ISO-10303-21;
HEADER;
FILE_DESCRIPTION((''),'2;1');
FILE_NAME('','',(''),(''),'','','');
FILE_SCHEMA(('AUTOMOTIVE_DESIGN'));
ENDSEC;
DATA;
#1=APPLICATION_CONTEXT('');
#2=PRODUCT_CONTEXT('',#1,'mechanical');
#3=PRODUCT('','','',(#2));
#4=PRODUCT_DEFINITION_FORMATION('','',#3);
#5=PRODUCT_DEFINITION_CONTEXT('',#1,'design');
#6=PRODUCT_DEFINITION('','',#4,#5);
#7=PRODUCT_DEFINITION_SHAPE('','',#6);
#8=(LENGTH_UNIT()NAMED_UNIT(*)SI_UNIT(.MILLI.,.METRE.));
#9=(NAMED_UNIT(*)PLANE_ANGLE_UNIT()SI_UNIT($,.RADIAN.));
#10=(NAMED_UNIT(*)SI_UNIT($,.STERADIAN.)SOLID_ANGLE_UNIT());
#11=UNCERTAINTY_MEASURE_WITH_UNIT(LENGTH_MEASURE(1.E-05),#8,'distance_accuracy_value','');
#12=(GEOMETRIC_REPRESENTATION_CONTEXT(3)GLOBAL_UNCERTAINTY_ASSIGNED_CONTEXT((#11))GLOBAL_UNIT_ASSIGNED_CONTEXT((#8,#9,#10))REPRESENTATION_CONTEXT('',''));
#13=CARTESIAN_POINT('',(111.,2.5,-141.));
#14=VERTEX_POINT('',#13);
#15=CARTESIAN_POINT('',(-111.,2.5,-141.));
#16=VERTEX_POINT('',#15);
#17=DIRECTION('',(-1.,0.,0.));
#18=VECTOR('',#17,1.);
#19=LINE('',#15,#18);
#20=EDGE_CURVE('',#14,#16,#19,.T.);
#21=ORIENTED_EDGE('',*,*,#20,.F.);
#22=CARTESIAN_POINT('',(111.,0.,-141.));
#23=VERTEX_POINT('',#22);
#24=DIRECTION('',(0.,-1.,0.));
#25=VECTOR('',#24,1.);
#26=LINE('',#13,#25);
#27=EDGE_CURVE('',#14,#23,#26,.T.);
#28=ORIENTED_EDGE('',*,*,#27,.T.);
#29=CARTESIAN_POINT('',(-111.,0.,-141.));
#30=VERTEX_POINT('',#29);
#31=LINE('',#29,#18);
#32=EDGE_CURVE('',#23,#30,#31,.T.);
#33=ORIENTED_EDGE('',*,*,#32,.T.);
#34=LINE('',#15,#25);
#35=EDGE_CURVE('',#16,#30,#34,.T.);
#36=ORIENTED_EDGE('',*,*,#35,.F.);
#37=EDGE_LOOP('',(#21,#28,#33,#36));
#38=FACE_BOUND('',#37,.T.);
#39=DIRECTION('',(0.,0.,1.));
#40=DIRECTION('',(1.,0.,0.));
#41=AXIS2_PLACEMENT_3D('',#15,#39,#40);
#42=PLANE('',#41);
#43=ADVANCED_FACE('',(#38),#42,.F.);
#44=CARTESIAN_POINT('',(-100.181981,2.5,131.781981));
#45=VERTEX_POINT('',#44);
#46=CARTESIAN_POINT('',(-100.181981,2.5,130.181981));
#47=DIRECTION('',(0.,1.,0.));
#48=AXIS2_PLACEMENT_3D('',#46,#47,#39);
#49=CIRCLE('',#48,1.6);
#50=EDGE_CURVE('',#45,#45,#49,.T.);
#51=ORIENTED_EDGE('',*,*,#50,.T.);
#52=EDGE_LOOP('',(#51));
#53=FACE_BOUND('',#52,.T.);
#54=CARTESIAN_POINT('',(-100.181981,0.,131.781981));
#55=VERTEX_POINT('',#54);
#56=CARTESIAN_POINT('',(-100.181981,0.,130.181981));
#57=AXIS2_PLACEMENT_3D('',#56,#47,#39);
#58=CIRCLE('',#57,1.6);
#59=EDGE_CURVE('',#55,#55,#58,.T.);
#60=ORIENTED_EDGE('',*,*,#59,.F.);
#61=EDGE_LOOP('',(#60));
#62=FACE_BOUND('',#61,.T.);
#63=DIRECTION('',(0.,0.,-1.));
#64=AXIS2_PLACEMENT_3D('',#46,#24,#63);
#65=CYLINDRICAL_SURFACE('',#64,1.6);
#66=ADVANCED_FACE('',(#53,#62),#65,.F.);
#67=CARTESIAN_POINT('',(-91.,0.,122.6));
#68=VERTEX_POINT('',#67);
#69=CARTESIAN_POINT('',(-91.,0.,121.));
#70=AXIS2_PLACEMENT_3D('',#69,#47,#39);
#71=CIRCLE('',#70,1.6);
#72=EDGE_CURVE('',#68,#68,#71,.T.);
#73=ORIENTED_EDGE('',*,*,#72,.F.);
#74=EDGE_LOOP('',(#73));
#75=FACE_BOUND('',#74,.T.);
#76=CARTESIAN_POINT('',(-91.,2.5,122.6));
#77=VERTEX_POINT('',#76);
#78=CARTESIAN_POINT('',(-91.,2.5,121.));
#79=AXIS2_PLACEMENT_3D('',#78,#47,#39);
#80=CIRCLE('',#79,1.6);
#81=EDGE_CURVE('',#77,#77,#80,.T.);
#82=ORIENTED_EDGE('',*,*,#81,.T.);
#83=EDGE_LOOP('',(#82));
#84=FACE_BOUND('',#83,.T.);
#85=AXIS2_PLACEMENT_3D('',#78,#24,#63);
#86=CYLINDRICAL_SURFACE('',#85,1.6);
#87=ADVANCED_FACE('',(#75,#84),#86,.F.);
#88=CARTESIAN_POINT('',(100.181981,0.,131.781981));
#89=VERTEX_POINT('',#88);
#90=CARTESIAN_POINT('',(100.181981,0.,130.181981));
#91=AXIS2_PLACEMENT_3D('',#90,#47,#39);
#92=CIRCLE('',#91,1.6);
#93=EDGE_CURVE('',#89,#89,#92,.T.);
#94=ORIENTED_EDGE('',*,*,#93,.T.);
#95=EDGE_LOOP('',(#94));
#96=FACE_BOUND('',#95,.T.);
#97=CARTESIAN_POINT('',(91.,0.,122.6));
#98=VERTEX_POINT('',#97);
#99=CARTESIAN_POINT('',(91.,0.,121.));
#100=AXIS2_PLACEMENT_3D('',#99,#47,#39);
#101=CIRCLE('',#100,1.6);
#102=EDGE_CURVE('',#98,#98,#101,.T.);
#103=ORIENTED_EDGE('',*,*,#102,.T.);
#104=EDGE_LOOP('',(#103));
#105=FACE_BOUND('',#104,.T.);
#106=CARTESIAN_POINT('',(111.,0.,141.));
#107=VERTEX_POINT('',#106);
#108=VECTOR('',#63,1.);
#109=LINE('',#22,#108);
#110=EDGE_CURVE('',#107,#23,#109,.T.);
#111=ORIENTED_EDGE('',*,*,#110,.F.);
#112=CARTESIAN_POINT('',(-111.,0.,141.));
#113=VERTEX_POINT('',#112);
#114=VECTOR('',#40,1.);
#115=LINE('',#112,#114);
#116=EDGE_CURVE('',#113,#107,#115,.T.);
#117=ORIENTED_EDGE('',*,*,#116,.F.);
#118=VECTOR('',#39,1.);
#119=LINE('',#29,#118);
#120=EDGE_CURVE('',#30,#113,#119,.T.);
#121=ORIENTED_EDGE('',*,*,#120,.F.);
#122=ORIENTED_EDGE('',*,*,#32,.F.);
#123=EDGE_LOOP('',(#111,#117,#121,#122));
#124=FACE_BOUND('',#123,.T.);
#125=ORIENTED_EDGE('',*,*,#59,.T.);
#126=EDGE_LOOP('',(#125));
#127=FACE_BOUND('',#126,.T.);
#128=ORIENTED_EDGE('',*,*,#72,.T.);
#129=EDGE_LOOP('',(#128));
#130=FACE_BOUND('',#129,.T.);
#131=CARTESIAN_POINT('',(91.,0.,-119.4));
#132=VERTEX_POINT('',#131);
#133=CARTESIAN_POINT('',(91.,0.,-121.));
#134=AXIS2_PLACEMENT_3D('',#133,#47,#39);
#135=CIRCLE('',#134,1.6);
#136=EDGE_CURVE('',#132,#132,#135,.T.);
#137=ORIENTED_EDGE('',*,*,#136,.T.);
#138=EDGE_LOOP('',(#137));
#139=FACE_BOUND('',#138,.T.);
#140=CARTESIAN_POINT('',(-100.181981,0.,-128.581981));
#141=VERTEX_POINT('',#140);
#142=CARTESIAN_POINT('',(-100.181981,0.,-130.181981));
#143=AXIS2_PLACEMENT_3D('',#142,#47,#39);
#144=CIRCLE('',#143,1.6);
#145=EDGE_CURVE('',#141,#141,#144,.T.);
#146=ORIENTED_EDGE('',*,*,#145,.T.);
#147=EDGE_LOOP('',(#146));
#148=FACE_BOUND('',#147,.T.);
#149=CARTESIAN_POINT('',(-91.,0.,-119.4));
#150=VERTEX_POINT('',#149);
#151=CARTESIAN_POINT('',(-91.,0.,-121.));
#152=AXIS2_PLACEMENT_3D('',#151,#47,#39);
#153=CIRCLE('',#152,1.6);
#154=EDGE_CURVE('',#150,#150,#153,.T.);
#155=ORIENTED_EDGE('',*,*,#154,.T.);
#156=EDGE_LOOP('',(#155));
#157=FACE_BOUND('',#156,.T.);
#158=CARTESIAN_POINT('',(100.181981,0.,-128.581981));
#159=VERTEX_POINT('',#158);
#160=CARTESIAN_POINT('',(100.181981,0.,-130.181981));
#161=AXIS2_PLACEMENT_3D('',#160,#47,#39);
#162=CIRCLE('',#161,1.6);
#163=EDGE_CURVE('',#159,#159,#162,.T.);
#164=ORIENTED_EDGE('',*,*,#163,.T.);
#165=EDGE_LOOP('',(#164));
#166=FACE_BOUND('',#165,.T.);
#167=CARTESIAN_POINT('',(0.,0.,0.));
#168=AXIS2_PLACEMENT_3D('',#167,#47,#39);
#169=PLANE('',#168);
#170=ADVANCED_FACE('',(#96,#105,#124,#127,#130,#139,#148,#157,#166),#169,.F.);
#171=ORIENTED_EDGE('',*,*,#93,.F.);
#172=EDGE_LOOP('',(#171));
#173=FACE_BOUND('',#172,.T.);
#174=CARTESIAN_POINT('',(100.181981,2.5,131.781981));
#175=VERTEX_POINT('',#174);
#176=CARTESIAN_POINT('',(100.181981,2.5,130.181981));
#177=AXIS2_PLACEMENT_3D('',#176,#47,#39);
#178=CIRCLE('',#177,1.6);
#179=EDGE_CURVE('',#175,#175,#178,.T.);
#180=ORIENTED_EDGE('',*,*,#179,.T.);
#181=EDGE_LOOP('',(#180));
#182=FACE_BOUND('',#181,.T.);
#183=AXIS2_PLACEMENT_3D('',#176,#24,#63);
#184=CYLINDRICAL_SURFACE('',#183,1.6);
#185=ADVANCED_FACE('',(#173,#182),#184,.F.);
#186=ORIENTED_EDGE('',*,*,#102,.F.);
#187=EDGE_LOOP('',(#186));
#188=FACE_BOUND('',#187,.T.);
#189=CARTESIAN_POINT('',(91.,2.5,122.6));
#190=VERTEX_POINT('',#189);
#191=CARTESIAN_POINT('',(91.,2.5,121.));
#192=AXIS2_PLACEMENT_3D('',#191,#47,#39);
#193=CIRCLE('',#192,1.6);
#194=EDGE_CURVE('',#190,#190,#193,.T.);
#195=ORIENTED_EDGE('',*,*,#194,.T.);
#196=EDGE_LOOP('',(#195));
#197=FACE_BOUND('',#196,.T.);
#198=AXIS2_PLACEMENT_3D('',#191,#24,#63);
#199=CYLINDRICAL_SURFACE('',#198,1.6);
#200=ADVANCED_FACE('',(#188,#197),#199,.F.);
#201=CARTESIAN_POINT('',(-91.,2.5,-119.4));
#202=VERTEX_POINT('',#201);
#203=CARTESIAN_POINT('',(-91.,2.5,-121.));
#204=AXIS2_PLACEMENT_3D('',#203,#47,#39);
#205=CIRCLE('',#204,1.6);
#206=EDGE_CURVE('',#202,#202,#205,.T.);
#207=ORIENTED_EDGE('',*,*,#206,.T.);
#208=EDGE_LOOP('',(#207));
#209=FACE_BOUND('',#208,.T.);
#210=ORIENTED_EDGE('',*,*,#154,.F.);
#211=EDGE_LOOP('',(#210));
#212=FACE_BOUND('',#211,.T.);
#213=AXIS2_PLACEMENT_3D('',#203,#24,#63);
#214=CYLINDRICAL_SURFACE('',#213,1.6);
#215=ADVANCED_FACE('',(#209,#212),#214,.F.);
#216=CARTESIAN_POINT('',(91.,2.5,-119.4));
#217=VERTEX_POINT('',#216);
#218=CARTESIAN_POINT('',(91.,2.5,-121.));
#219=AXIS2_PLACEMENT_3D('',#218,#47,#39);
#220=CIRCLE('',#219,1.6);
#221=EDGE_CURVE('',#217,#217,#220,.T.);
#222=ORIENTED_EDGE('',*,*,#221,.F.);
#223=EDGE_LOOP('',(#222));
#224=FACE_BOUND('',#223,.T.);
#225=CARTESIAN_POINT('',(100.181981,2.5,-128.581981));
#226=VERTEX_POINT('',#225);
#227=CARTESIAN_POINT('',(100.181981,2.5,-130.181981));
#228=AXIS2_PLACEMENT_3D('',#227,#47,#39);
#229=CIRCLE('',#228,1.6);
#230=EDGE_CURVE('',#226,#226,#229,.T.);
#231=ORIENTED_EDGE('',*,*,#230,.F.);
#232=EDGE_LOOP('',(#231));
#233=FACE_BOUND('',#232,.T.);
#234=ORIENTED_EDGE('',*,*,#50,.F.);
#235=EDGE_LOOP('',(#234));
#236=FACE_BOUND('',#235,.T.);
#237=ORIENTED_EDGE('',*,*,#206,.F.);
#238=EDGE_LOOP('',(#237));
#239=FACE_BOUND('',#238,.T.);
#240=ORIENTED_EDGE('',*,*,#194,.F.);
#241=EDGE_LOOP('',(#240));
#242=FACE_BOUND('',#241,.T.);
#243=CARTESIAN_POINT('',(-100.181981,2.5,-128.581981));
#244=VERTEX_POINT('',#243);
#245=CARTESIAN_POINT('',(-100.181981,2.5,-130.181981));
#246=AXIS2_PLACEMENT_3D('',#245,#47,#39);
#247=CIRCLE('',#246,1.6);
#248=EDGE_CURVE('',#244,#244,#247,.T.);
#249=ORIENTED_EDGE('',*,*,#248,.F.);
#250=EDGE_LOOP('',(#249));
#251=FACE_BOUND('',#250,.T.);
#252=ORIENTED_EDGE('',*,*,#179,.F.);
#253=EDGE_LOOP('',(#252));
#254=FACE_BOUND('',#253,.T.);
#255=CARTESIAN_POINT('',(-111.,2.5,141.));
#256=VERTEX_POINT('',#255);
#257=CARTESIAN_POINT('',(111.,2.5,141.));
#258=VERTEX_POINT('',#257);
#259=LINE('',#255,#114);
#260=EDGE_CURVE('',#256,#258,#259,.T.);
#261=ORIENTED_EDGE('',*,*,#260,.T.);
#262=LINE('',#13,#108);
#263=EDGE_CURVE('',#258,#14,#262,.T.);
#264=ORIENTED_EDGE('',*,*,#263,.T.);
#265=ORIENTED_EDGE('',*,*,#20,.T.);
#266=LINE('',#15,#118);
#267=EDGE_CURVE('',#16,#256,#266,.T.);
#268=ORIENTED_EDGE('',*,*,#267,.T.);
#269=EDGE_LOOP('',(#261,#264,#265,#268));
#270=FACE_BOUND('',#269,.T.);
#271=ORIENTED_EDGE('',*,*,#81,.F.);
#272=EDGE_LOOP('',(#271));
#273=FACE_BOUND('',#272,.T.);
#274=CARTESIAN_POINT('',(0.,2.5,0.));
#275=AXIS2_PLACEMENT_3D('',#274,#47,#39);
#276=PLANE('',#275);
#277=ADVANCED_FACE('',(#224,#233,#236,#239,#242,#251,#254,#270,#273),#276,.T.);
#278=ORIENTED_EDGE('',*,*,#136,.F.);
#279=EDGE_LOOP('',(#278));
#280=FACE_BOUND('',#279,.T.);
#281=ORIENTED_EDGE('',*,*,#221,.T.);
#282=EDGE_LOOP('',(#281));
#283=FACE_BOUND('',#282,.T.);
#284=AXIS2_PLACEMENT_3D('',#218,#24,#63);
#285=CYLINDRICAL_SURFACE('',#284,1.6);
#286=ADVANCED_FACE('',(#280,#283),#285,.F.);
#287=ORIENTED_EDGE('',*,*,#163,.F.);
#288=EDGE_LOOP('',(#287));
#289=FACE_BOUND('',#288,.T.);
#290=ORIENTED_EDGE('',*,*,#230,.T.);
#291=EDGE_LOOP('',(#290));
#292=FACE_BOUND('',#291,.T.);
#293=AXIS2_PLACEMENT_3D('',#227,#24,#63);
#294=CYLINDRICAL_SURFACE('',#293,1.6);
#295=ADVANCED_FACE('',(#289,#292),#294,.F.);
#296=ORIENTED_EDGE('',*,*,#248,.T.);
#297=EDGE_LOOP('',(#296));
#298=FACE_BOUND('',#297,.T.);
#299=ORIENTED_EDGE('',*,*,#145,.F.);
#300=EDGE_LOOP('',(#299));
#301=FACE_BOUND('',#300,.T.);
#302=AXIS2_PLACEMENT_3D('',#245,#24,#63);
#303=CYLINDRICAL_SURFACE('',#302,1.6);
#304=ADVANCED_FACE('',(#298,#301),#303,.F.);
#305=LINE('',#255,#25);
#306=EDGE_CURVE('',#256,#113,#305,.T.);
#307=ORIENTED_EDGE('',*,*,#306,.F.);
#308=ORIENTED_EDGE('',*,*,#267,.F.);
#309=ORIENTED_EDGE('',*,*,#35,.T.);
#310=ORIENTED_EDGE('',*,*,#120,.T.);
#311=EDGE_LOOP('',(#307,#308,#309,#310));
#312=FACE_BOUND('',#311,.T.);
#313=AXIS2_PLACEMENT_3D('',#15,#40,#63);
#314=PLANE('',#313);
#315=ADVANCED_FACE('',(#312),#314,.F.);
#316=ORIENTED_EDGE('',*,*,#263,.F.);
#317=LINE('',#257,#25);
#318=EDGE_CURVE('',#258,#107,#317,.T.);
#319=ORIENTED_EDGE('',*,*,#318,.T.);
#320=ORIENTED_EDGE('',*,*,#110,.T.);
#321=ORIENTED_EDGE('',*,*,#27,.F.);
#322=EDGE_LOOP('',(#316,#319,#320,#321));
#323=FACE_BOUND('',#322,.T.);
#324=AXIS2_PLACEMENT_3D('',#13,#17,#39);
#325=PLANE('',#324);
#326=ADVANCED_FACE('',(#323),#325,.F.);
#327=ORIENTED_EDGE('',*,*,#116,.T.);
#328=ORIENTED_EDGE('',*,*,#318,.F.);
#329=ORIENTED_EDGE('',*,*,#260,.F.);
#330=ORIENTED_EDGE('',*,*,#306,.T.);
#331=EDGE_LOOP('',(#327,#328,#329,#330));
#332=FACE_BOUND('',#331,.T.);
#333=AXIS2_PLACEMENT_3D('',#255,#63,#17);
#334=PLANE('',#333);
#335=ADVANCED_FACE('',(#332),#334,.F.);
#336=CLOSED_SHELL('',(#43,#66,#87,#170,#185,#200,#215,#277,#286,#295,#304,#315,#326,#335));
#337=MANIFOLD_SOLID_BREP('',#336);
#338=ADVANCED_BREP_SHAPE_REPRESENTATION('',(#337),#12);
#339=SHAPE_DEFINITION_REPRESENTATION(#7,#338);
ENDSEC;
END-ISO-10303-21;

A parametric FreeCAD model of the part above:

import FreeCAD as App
import Part
import Sketcher

doc = App.newDocument("Part")
body = doc.addObject("PartDesign::Body", "Body")

sketch1 = body.newObject("Sketcher::SketchObject", "Sketch")
sketch1.AttachmentSupport = (doc.getObject("XZ_Plane"), [""])
sketch1.MapMode = "FlatFace"
sketch1.addGeometry([
    Part.LineSegment(App.Vector(-111, -141, 0), App.Vector(-111, 141, 0)),
    Part.LineSegment(App.Vector(-111, 141, 0), App.Vector(111, 141, 0)),
    Part.LineSegment(App.Vector(111, 141, 0), App.Vector(111, -141, 0)),
    Part.LineSegment(App.Vector(111, -141, 0), App.Vector(-111, -141, 0)),
    Part.Circle(App.Vector(-100.2, 130.2, 0), App.Vector(0, 0, 1), 1.6),
    Part.Circle(App.Vector(-91, 121, 0), App.Vector(0, 0, 1), 1.6),
    Part.Circle(App.Vector(100.2, 130.2, 0), App.Vector(0, 0, 1), 1.6),
    Part.Circle(App.Vector(91, 121, 0), App.Vector(0, 0, 1), 1.6),
    Part.Circle(App.Vector(-91, -121, 0), App.Vector(0, 0, 1), 1.6),
    Part.Circle(App.Vector(-100.2, -130.2, 0), App.Vector(0, 0, 1), 1.6),
    Part.Circle(App.Vector(91, -121, 0), App.Vector(0, 0, 1), 1.6),
    Part.Circle(App.Vector(100.2, -130.2, 0), App.Vector(0, 0, 1), 1.6),
], False)
sketch1.addConstraint([
    Sketcher.Constraint("Coincident", 0, 2, 1, 1),
    Sketcher.Constraint("Coincident", 1, 2, 2, 1),
    Sketcher.Constraint("Coincident", 2, 2, 3, 1),
    Sketcher.Constraint("Coincident", 3, 2, 0, 1),
    Sketcher.Constraint("Vertical", 0),
    Sketcher.Constraint("Horizontal", 1),
    Sketcher.Constraint("Vertical", 2),
    Sketcher.Constraint("Horizontal", 3),
    Sketcher.Constraint("Equal", 4, 5),
    Sketcher.Constraint("Equal", 5, 6),
    Sketcher.Constraint("Equal", 6, 7),
    Sketcher.Constraint("Equal", 7, 8),
    Sketcher.Constraint("Equal", 8, 9),
    Sketcher.Constraint("Equal", 9, 10),
    Sketcher.Constraint("Equal", 10, 11),
    Sketcher.Constraint("Symmetric", 7, 3, 8, 3, -1, 1),
    Sketcher.Constraint("Symmetric", 6, 3, 9, 3, -1, 1),
    Sketcher.Constraint("Symmetric", 5, 3, 10, 3, -1, 1),
    Sketcher.Constraint("Symmetric", 4, 3, 11, 3, -1, 1),
    Sketcher.Constraint("Symmetric", 0, 2, 2, 2, -1, 1),
    Sketcher.Constraint("Symmetric", 4, 3, 6, 3, -2),
    Sketcher.Constraint("Symmetric", 5, 3, 7, 3, -2),
    Sketcher.Constraint("Diameter", 4, 3.2),
    Sketcher.Constraint("DistanceX", 1, 1, 1, 2, 222.0),
    Sketcher.Constraint("DistanceY", 0, 1, 0, 2, 282.0),
    Sketcher.Constraint("DistanceX", 5, 3, -1, 1, 91.0),
    Sketcher.Constraint("DistanceY", -1, 1, 5, 3, 121.0),
    Sketcher.Constraint("DistanceX", 4, 3, -1, 1, 100.181981),
    Sketcher.Constraint("DistanceY", -1, 1, 4, 3, 130.181981),
])
pad1 = body.newObject("PartDesign::Pad", "Pad")
pad1.Profile = sketch1
pad1.Length = 2.5
pad1.Reversed = True

doc.recompute()
